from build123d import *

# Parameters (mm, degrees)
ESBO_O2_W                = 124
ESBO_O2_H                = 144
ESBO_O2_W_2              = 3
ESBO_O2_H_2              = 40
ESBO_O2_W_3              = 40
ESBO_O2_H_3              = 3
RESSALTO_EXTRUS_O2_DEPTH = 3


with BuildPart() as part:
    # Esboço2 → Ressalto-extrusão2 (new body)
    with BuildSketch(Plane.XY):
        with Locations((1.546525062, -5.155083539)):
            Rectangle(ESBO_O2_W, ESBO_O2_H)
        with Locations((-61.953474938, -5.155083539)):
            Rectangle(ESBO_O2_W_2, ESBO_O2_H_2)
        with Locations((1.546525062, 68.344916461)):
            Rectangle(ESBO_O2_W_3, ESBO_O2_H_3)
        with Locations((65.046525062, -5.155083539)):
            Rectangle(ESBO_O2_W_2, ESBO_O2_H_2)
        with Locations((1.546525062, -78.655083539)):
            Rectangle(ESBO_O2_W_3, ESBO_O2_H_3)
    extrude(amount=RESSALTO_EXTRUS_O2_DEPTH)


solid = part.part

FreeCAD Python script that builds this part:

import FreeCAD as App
import Part
import Sketcher

V = App.Vector


def add_polygon(sketch, points):
    """Adds a closed chain of lines whose ends are joined by coincident constraints."""
    first, n = sketch.GeometryCount, len(points)
    for a, b in zip(points, points[1:] + points[:1]):
        sketch.addGeometry(Part.LineSegment(App.Vector(*a, 0), App.Vector(*b, 0)), False)
    for i in range(n):
        sketch.addConstraint(Sketcher.Constraint("Coincident", first + i, 2, first + (i + 1) % n, 1))

doc = App.newDocument("Part")
body = doc.addObject("PartDesign::Body", "Body")

sketch1 = body.newObject("Sketcher::SketchObject", "Sketch")
sketch1.AttachmentSupport = (doc.getObject("XY_Plane"), [""])
sketch1.MapMode = "FlatFace"
add_polygon(sketch1, [(-60.5, -25.2), (-60.5, -77.2), (-18.5, -77.2), (-18.5, -80.2), (21.5, -80.2), (21.5, -77.2), (63.5, -77.2), (63.5, -25.2), (66.5, -25.2), (66.5, 14.8), (63.5, 14.8), (63.5, 66.8), (21.5, 66.8), (21.5, 69.8), (-18.5, 69.8), (-18.5, 66.8), (-60.5, 66.8), (-60.5, 14.8), (-63.5, 14.8), (-63.5, -25.2)])
sketch1.addConstraint(Sketcher.Constraint("Vertical", 0))
sketch1.addConstraint(Sketcher.Constraint("Horizontal", 1))
sketch1.addConstraint(Sketcher.Constraint("Vertical", 2))
sketch1.addConstraint(Sketcher.Constraint("Horizontal", 3))
sketch1.addConstraint(Sketcher.Constraint("Vertical", 4))
sketch1.addConstraint(Sketcher.Constraint("Horizontal", 5))
sketch1.addConstraint(Sketcher.Constraint("Vertical", 6))
sketch1.addConstraint(Sketcher.Constraint("Horizontal", 7))
sketch1.addConstraint(Sketcher.Constraint("Vertical", 8))
sketch1.addConstraint(Sketcher.Constraint("Horizontal", 9))
sketch1.addConstraint(Sketcher.Constraint("Vertical", 10))
sketch1.addConstraint(Sketcher.Constraint("Horizontal", 11))
sketch1.addConstraint(Sketcher.Constraint("Vertical", 12))
sketch1.addConstraint(Sketcher.Constraint("Horizontal", 13))
sketch1.addConstraint(Sketcher.Constraint("Vertical", 14))
sketch1.addConstraint(Sketcher.Constraint("Horizontal", 15))
sketch1.addConstraint(Sketcher.Constraint("Vertical", 16))
sketch1.addConstraint(Sketcher.Constraint("Horizontal", 17))
sketch1.addConstraint(Sketcher.Constraint("Vertical", 18))
sketch1.addConstraint(Sketcher.Constraint("Horizontal", 19))
sketch1.addConstraint(Sketcher.Constraint("Horizontal", 1, 2, 4, 2))
sketch1.addConstraint(Sketcher.Constraint("Horizontal", 11, 2, 14, 2))
sketch1.addConstraint(Sketcher.Constraint("Horizontal", 9, 2, 16, 2))
sketch1.addConstraint(Sketcher.Constraint("Horizontal", 7, 2, 18, 2))
sketch1.addConstraint(Sketcher.Constraint("Vertical", 6, 2, 9, 2))
sketch1.addConstraint(Sketcher.Constraint("Vertical", 4, 2, 11, 2))
sketch1.addConstraint(Sketcher.Constraint("Vertical", 2, 2, 13, 2))
sketch1.addConstraint(Sketcher.Constraint("Vertical", 0, 2, 15, 2))
sketch1.addConstraint(Sketcher.Constraint("Equal", 1, 5))
sketch1.addConstraint(Sketcher.Constraint("Equal", 9, 17))
sketch1.addConstraint(Sketcher.Constraint("Equal", 19, 2))
sketch1.addConstraint(Sketcher.Constraint("Equal", 13, 8))
sketch1.addConstraint(Sketcher.Constraint("Equal", 6, 10))
sketch1.addConstraint(Sketcher.Constraint("Equal", 4, 12))
sketch1.addConstraint(Sketcher.Constraint("DistanceX", 1, 1, 1, 2, 42.0))
sketch1.addConstraint(Sketcher.Constraint("DistanceX", 3, 1, 3, 2, 40.0))
sketch1.addConstraint(Sketcher.Constraint("DistanceX", 7, 1, 7, 2, 3.0))
sketch1.addConstraint(Sketcher.Constraint("DistanceY", 0, 2, 0, 1, 52.0))
sketch1.addConstraint(Sketcher.Constraint("DistanceX", 0, 2, -1, 1, 60.453475))
sketch1.addConstraint(Sketcher.Constraint("DistanceY", 0, 2, -1, 1, 77.155084))
pad1 = body.newObject("PartDesign::Pad", "Pad")
pad1.Profile = sketch1
pad1.Length = 3

doc.recompute()
